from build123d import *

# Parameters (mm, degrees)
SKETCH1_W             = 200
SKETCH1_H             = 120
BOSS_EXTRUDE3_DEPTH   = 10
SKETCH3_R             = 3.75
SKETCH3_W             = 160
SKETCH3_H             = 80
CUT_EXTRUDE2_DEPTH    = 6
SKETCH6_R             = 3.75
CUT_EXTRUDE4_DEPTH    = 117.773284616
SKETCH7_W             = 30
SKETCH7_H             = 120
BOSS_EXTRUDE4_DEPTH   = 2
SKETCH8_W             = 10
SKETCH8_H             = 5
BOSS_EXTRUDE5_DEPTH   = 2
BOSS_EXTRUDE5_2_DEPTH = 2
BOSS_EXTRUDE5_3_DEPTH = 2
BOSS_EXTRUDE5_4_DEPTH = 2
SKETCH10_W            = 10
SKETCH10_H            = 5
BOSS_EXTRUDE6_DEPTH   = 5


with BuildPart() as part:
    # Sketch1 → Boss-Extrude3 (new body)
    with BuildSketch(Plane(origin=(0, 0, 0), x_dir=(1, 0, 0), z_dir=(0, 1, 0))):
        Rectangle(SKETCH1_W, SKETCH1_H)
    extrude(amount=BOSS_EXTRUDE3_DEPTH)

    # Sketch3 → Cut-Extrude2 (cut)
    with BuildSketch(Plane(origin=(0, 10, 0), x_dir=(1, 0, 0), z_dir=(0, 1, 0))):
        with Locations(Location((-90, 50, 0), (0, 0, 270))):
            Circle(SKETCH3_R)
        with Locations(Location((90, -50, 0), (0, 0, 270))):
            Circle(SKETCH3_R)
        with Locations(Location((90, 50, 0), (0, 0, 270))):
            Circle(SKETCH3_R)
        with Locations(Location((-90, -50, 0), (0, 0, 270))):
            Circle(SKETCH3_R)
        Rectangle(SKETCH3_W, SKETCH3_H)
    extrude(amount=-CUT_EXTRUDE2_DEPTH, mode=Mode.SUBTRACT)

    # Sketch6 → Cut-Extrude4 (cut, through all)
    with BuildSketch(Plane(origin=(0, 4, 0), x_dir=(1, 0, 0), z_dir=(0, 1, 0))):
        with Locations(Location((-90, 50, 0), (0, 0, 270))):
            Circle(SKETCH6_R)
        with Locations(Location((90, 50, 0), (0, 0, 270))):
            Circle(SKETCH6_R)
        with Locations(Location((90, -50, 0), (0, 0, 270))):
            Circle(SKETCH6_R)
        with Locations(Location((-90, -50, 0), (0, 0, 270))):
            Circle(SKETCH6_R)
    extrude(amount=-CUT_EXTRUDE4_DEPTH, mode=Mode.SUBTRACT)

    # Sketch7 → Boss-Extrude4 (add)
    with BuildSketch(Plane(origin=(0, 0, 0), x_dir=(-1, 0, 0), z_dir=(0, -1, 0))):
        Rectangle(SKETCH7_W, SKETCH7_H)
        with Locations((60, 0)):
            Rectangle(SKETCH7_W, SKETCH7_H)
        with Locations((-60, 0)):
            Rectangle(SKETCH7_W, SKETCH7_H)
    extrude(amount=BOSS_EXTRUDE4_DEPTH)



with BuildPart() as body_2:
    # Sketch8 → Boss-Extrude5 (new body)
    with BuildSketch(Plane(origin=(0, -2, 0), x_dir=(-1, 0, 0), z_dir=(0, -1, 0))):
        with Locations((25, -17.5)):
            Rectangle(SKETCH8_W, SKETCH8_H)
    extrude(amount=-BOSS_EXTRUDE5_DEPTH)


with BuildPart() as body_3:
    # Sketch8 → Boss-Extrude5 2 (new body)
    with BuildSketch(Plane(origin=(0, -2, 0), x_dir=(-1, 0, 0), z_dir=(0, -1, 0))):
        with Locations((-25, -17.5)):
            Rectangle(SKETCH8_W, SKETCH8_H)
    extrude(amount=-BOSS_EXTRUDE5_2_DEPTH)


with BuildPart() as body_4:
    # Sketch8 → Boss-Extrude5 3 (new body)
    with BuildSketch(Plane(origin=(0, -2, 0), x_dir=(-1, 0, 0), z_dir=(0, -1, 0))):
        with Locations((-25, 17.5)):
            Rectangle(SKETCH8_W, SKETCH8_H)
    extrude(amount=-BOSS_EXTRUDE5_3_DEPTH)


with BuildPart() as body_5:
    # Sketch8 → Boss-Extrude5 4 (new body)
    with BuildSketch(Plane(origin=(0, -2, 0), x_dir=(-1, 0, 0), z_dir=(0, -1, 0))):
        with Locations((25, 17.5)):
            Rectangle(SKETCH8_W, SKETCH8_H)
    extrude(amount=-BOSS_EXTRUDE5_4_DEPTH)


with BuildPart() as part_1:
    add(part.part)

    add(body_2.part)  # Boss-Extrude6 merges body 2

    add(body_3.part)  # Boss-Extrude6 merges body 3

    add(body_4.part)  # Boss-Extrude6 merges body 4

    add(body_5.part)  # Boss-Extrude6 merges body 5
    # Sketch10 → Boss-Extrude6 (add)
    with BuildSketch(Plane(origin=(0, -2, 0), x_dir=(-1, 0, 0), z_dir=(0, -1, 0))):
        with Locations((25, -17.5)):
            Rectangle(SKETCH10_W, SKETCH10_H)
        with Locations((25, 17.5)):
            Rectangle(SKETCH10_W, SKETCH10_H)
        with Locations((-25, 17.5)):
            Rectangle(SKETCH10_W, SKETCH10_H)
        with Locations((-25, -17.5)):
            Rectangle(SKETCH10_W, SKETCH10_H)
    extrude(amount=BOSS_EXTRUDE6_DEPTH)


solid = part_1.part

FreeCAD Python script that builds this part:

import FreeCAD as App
import Part
import Sketcher
from FreeCAD import Vector
Q = App.Units.Quantity

doc = App.newDocument("Part")
params = doc.addObject("Spreadsheet::Sheet", "Params")
for row, (alias, value) in enumerate([
    ("sketch1_width", "200 mm"),
    ("sketch1_height", "120 mm"),
    ("pad1_length", "10 mm"),
    ("sketch2_diameter", "7.5 mm"),
    ("sketch2_width", "160 mm"),
    ("sketch2_height", "80 mm"),
    ("pocket1_length", "6 mm"),
    ("sketch3_diameter", "7.5 mm"),
    ("sketch4_width", "30 mm"),
    ("sketch4_height", "120 mm"),
    ("pad2_length", "2 mm"),
    ("sketch5_width", "10 mm"),
    ("sketch5_height", "5 mm"),
    ("pad3_length", "2 mm"),
    ("sketch6_width", "10 mm"),
    ("sketch6_height", "5 mm"),
    ("pad4_length", "2 mm"),
    ("sketch7_width", "10 mm"),
    ("sketch7_height", "5 mm"),
    ("pad5_length", "2 mm"),
    ("sketch8_width", "10 mm"),
    ("sketch8_height", "5 mm"),
    ("pad6_length", "2 mm"),
    ("sketch9_width", "10 mm"),
    ("sketch9_height", "5 mm"),
    ("pad7_length", "5 mm"),
], start=1):
    params.set(f"A{row}", alias)
    params.set(f"B{row}", "=" + value)
    params.setAlias(f"B{row}", alias)

body = doc.addObject("PartDesign::Body", "Body")

sketch1 = body.newObject("Sketcher::SketchObject", "Sketch")
sketch1.AttachmentSupport = (doc.getObject("XZ_Plane"), [""])
sketch1.MapMode = "FlatFace"
sketch1.addGeometry([
    Part.LineSegment(Vector(-100, -60, 0), Vector(-100, 60, 0)),
    Part.LineSegment(Vector(-100, 60, 0), Vector(100, 60, 0)),
    Part.LineSegment(Vector(100, 60, 0), Vector(100, -60, 0)),
    Part.LineSegment(Vector(100, -60, 0), Vector(-100, -60, 0)),
], False)
sketch1.addConstraint([
    Sketcher.Constraint("Coincident", 0, 2, 1, 1),
    Sketcher.Constraint("Coincident", 1, 2, 2, 1),
    Sketcher.Constraint("Coincident", 2, 2, 3, 1),
    Sketcher.Constraint("Coincident", 3, 2, 0, 1),
    Sketcher.Constraint("Vertical", 0),
    Sketcher.Constraint("Horizontal", 1),
    Sketcher.Constraint("Vertical", 2),
    Sketcher.Constraint("Horizontal", 3),
    Sketcher.Constraint("Symmetric", 0, 2, 2, 2, -1, 1),
    Sketcher.Constraint("DistanceX", 1, 1, 1, 2, Q("200 mm")),
    Sketcher.Constraint("DistanceY", 0, 1, 0, 2, Q("120 mm")),
])
sketch1.setExpression("Constraints[9]", "Params.sketch1_width")
sketch1.setExpression("Constraints[10]", "Params.sketch1_height")
pad1 = body.newObject("PartDesign::Pad", "Pad")
pad1.Profile = sketch1
pad1.setExpression("Length", "Params.pad1_length")
pad1.Reversed = True

sketch2 = body.newObject("Sketcher::SketchObject", "Sketch001")
sketch2.AttachmentSupport = (doc.getObject("XZ_Plane"), [""])
sketch2.MapMode = "FlatFace"
sketch2.AttachmentOffset = App.Placement(Vector(0, 0, -10), App.Rotation())
sketch2.addGeometry([
    Part.Circle(Vector(-90, -50, 0), Vector(0, 0, 1), 3.8),
    Part.Circle(Vector(90, 50, 0), Vector(0, 0, 1), 3.8),
    Part.Circle(Vector(90, -50, 0), Vector(0, 0, 1), 3.8),
    Part.Circle(Vector(-90, 50, 0), Vector(0, 0, 1), 3.8),
    Part.LineSegment(Vector(-80, -40, 0), Vector(-80, 40, 0)),
    Part.LineSegment(Vector(-80, 40, 0), Vector(80, 40, 0)),
    Part.LineSegment(Vector(80, 40, 0), Vector(80, -40, 0)),
    Part.LineSegment(Vector(80, -40, 0), Vector(-80, -40, 0)),
], False)
sketch2.addConstraint([
    Sketcher.Constraint("Coincident", 4, 2, 5, 1),
    Sketcher.Constraint("Coincident", 5, 2, 6, 1),
    Sketcher.Constraint("Coincident", 6, 2, 7, 1),
    Sketcher.Constraint("Coincident", 7, 2, 4, 1),
    Sketcher.Constraint("Vertical", 4),
    Sketcher.Constraint("Horizontal", 5),
    Sketcher.Constraint("Vertical", 6),
    Sketcher.Constraint("Horizontal", 7),
    Sketcher.Constraint("Equal", 0, 1),
    Sketcher.Constraint("Equal", 1, 2),
    Sketcher.Constraint("Equal", 2, 3),
    Sketcher.Constraint("Symmetric", 0, 3, 1, 3, -1, 1),
    Sketcher.Constraint("Symmetric", 2, 3, 3, 3, -1, 1),
    Sketcher.Constraint("Symmetric", 4, 2, 6, 2, -1, 1),
    Sketcher.Constraint("Symmetric", 0, 3, 2, 3, -2),
    Sketcher.Constraint("Diameter", 0, Q("7.5 mm")),
    Sketcher.Constraint("DistanceX", 5, 1, 5, 2, Q("160 mm")),
    Sketcher.Constraint("DistanceY", 4, 1, 4, 2, Q("80 mm")),
    Sketcher.Constraint("DistanceX", 0, 3, -1, 1, Q("90 mm")),
    Sketcher.Constraint("DistanceY", 0, 3, -1, 1, Q("50 mm")),
])
sketch2.setExpression("Constraints[15]", "Params.sketch2_diameter")
sketch2.setExpression("Constraints[16]", "Params.sketch2_width")
sketch2.setExpression("Constraints[17]", "Params.sketch2_height")
pocket1 = body.newObject("PartDesign::Pocket", "Pocket")
pocket1.Profile = sketch2
pocket1.setExpression("Length", "Params.pocket1_length")
pocket1.Reversed = True

sketch3 = body.newObject("Sketcher::SketchObject", "Sketch002")
sketch3.AttachmentSupport = (doc.getObject("XZ_Plane"), [""])
sketch3.MapMode = "FlatFace"
sketch3.AttachmentOffset = App.Placement(Vector(0, 0, -4), App.Rotation())
sketch3.addGeometry([
    Part.Circle(Vector(-90, -50, 0), Vector(0, 0, 1), 3.8),
    Part.Circle(Vector(90, -50, 0), Vector(0, 0, 1), 3.8),
    Part.Circle(Vector(90, 50, 0), Vector(0, 0, 1), 3.8),
    Part.Circle(Vector(-90, 50, 0), Vector(0, 0, 1), 3.8),
], False)
sketch3.addConstraint([
    Sketcher.Constraint("Equal", 0, 1),
    Sketcher.Constraint("Equal", 1, 2),
    Sketcher.Constraint("Equal", 2, 3),
    Sketcher.Constraint("Symmetric", 0, 3, 2, 3, -1, 1),
    Sketcher.Constraint("Symmetric", 1, 3, 3, 3, -1, 1),
    Sketcher.Constraint("Symmetric", 0, 3, 1, 3, -2),
    Sketcher.Constraint("Diameter", 0, Q("7.5 mm")),
    Sketcher.Constraint("DistanceX", 0, 3, -1, 1, Q("90 mm")),
    Sketcher.Constraint("DistanceY", 0, 3, -1, 1, Q("50 mm")),
])
sketch3.setExpression("Constraints[6]", "Params.sketch3_diameter")
pocket2 = body.newObject("PartDesign::Pocket", "Pocket001")
pocket2.Profile = sketch3
pocket2.Type = "ThroughAll"
pocket2.Reversed = True

sketch4 = body.newObject("Sketcher::SketchObject", "Sketch003")
sketch4.AttachmentSupport = (doc.getObject("XZ_Plane"), [""])
sketch4.MapMode = "FlatFace"
sketch4.addGeometry([
    Part.LineSegment(Vector(15, -60, 0), Vector(15, 60, 0)),
    Part.LineSegment(Vector(15, 60, 0), Vector(-15, 60, 0)),
    Part.LineSegment(Vector(-15, 60, 0), Vector(-15, -60, 0)),
    Part.LineSegment(Vector(-15, -60, 0), Vector(15, -60, 0)),
    Part.LineSegment(Vector(-45, -60, 0), Vector(-45, 60, 0)),
    Part.LineSegment(Vector(-45, 60, 0), Vector(-75, 60, 0)),
    Part.LineSegment(Vector(-75, 60, 0), Vector(-75, -60, 0)),
    Part.LineSegment(Vector(-75, -60, 0), Vector(-45, -60, 0)),
    Part.LineSegment(Vector(75, -60, 0), Vector(75, 60, 0)),
    Part.LineSegment(Vector(75, 60, 0), Vector(45, 60, 0)),
    Part.LineSegment(Vector(45, 60, 0), Vector(45, -60, 0)),
    Part.LineSegment(Vector(45, -60, 0), Vector(75, -60, 0)),
], False)
sketch4.addConstraint([
    Sketcher.Constraint("Coincident", 0, 2, 1, 1),
    Sketcher.Constraint("Coincident", 1, 2, 2, 1),
    Sketcher.Constraint("Coincident", 2, 2, 3, 1),
    Sketcher.Constraint("Coincident", 3, 2, 0, 1),
    Sketcher.Constraint("Coincident", 4, 2, 5, 1),
    Sketcher.Constraint("Coincident", 5, 2, 6, 1),
    Sketcher.Constraint("Coincident", 6, 2, 7, 1),
    Sketcher.Constraint("Coincident", 7, 2, 4, 1),
    Sketcher.Constraint("Coincident", 8, 2, 9, 1),
    Sketcher.Constraint("Coincident", 9, 2, 10, 1),
    Sketcher.Constraint("Coincident", 10, 2, 11, 1),
    Sketcher.Constraint("Coincident", 11, 2, 8, 1),
    Sketcher.Constraint("Vertical", 0),
    Sketcher.Constraint("Horizontal", 1),
    Sketcher.Constraint("Vertical", 2),
    Sketcher.Constraint("Horizontal", 3),
    Sketcher.Constraint("Vertical", 4),
    Sketcher.Constraint("Horizontal", 5),
    Sketcher.Constraint("Vertical", 6),
    Sketcher.Constraint("Horizontal", 7),
    Sketcher.Constraint("Vertical", 8),
    Sketcher.Constraint("Horizontal", 9),
    Sketcher.Constraint("Vertical", 10),
    Sketcher.Constraint("Horizontal", 11),
    Sketcher.Constraint("Symmetric", 0, 2, 2, 2, -1, 1),
    Sketcher.Constraint("Symmetric", 6, 2, 8, 2, -1, 1),
    Sketcher.Constraint("Symmetric", 4, 2, 10, 2, -1, 1),
    Sketcher.Constraint("Horizontal", 1, 2, 4, 2),
    Sketcher.Constraint("Horizontal", 3, 2, 6, 2),
    Sketcher.Constraint("Equal", 3, 5),
    Sketcher.Constraint("DistanceX", 1, 2, 1, 1, Q("30 mm")),
    Sketcher.Constraint("DistanceY", 0, 1, 0, 2, Q("120 mm")),
    Sketcher.Constraint("DistanceX", 4, 2, -1, 1, Q("45 mm")),
])
sketch4.setExpression("Constraints[30]", "Params.sketch4_width")
sketch4.setExpression("Constraints[31]", "Params.sketch4_height")
pad2 = body.newObject("PartDesign::Pad", "Pad001")
pad2.Profile = sketch4
pad2.setExpression("Length", "Params.pad2_length")
body2 = doc.addObject("PartDesign::Body", "Body001")

sketch5 = body2.newObject("Sketcher::SketchObject", "Sketch004")
sketch5.AttachmentSupport = (doc.getObject("XZ_Plane001"), [""])
sketch5.MapMode = "FlatFace"
sketch5.AttachmentOffset = App.Placement(Vector(0, 0, 2), App.Rotation())
sketch5.addGeometry([
    Part.LineSegment(Vector(-20, 15, 0), Vector(-20, 20, 0)),
    Part.LineSegment(Vector(-20, 20, 0), Vector(-30, 20, 0)),
    Part.LineSegment(Vector(-30, 20, 0), Vector(-30, 15, 0)),
    Part.LineSegment(Vector(-30, 15, 0), Vector(-20, 15, 0)),
], False)
sketch5.addConstraint([
    Sketcher.Constraint("Coincident", 0, 2, 1, 1),
    Sketcher.Constraint("Coincident", 1, 2, 2, 1),
    Sketcher.Constraint("Coincident", 2, 2, 3, 1),
    Sketcher.Constraint("Coincident", 3, 2, 0, 1),
    Sketcher.Constraint("Vertical", 0),
    Sketcher.Constraint("Horizontal", 1),
    Sketcher.Constraint("Vertical", 2),
    Sketcher.Constraint("Horizontal", 3),
    Sketcher.Constraint("DistanceX", 1, 2, 1, 1, Q("10 mm")),
    Sketcher.Constraint("DistanceY", 0, 1, 0, 2, Q("5 mm")),
    Sketcher.Constraint("DistanceX", 0, 2, -1, 1, Q("20 mm")),
    Sketcher.Constraint("DistanceY", -1, 1, 0, 2, Q("20 mm")),
])
sketch5.setExpression("Constraints[8]", "Params.sketch5_width")
sketch5.setExpression("Constraints[9]", "Params.sketch5_height")
pad3 = body2.newObject("PartDesign::Pad", "Pad002")
pad3.Profile = sketch5
pad3.setExpression("Length", "Params.pad3_length")
pad3.Reversed = True
body3 = doc.addObject("PartDesign::Body", "Body002")

sketch6 = body3.newObject("Sketcher::SketchObject", "Sketch005")
sketch6.AttachmentSupport = (doc.getObject("XZ_Plane002"), [""])
sketch6.MapMode = "FlatFace"
sketch6.AttachmentOffset = App.Placement(Vector(0, 0, 2), App.Rotation())
sketch6.addGeometry([
    Part.LineSegment(Vector(30, 15, 0), Vector(30, 20, 0)),
    Part.LineSegment(Vector(30, 20, 0), Vector(20, 20, 0)),
    Part.LineSegment(Vector(20, 20, 0), Vector(20, 15, 0)),
    Part.LineSegment(Vector(20, 15, 0), Vector(30, 15, 0)),
], False)
sketch6.addConstraint([
    Sketcher.Constraint("Coincident", 0, 2, 1, 1),
    Sketcher.Constraint("Coincident", 1, 2, 2, 1),
    Sketcher.Constraint("Coincident", 2, 2, 3, 1),
    Sketcher.Constraint("Coincident", 3, 2, 0, 1),
    Sketcher.Constraint("Vertical", 0),
    Sketcher.Constraint("Horizontal", 1),
    Sketcher.Constraint("Vertical", 2),
    Sketcher.Constraint("Horizontal", 3),
    Sketcher.Constraint("DistanceX", 1, 2, 1, 1, Q("10 mm")),
    Sketcher.Constraint("DistanceY", 0, 1, 0, 2, Q("5 mm")),
    Sketcher.Constraint("DistanceX", -1, 1, 0, 2, Q("30 mm")),
    Sketcher.Constraint("DistanceY", -1, 1, 0, 2, Q("20 mm")),
])
sketch6.setExpression("Constraints[8]", "Params.sketch6_width")
sketch6.setExpression("Constraints[9]", "Params.sketch6_height")
pad4 = body3.newObject("PartDesign::Pad", "Pad003")
pad4.Profile = sketch6
pad4.setExpression("Length", "Params.pad4_length")
pad4.Reversed = True
body4 = doc.addObject("PartDesign::Body", "Body003")

sketch7 = body4.newObject("Sketcher::SketchObject", "Sketch006")
sketch7.AttachmentSupport = (doc.getObject("XZ_Plane003"), [""])
sketch7.MapMode = "FlatFace"
sketch7.AttachmentOffset = App.Placement(Vector(0, 0, 2), App.Rotation())
sketch7.addGeometry([
    Part.LineSegment(Vector(30, -20, 0), Vector(30, -15, 0)),
    Part.LineSegment(Vector(30, -15, 0), Vector(20, -15, 0)),
    Part.LineSegment(Vector(20, -15, 0), Vector(20, -20, 0)),
    Part.LineSegment(Vector(20, -20, 0), Vector(30, -20, 0)),
], False)
sketch7.addConstraint([
    Sketcher.Constraint("Coincident", 0, 2, 1, 1),
    Sketcher.Constraint("Coincident", 1, 2, 2, 1),
    Sketcher.Constraint("Coincident", 2, 2, 3, 1),
    Sketcher.Constraint("Coincident", 3, 2, 0, 1),
    Sketcher.Constraint("Vertical", 0),
    Sketcher.Constraint("Horizontal", 1),
    Sketcher.Constraint("Vertical", 2),
    Sketcher.Constraint("Horizontal", 3),
    Sketcher.Constraint("DistanceX", 1, 2, 1, 1, Q("10 mm")),
    Sketcher.Constraint("DistanceY", 0, 1, 0, 2, Q("5 mm")),
    Sketcher.Constraint("DistanceX", -1, 1, 0, 2, Q("30 mm")),
    Sketcher.Constraint("DistanceY", 0, 2, -1, 1, Q("15 mm")),
])
sketch7.setExpression("Constraints[8]", "Params.sketch7_width")
sketch7.setExpression("Constraints[9]", "Params.sketch7_height")
pad5 = body4.newObject("PartDesign::Pad", "Pad004")
pad5.Profile = sketch7
pad5.setExpression("Length", "Params.pad5_length")
pad5.Reversed = True
body5 = doc.addObject("PartDesign::Body", "Body004")

sketch8 = body5.newObject("Sketcher::SketchObject", "Sketch007")
sketch8.AttachmentSupport = (doc.getObject("XZ_Plane004"), [""])
sketch8.MapMode = "FlatFace"
sketch8.AttachmentOffset = App.Placement(Vector(0, 0, 2), App.Rotation())
sketch8.addGeometry([
    Part.LineSegment(Vector(-20, -20, 0), Vector(-20, -15, 0)),
    Part.LineSegment(Vector(-20, -15, 0), Vector(-30, -15, 0)),
    Part.LineSegment(Vector(-30, -15, 0), Vector(-30, -20, 0)),
    Part.LineSegment(Vector(-30, -20, 0), Vector(-20, -20, 0)),
], False)
sketch8.addConstraint([
    Sketcher.Constraint("Coincident", 0, 2, 1, 1),
    Sketcher.Constraint("Coincident", 1, 2, 2, 1),
    Sketcher.Constraint("Coincident", 2, 2, 3, 1),
    Sketcher.Constraint("Coincident", 3, 2, 0, 1),
    Sketcher.Constraint("Vertical", 0),
    Sketcher.Constraint("Horizontal", 1),
    Sketcher.Constraint("Vertical", 2),
    Sketcher.Constraint("Horizontal", 3),
    Sketcher.Constraint("DistanceX", 1, 2, 1, 1, Q("10 mm")),
    Sketcher.Constraint("DistanceY", 0, 1, 0, 2, Q("5 mm")),
    Sketcher.Constraint("DistanceX", 0, 2, -1, 1, Q("20 mm")),
    Sketcher.Constraint("DistanceY", 0, 2, -1, 1, Q("15 mm")),
])
sketch8.setExpression("Constraints[8]", "Params.sketch8_width")
sketch8.setExpression("Constraints[9]", "Params.sketch8_height")
pad6 = body5.newObject("PartDesign::Pad", "Pad005")
pad6.Profile = sketch8
pad6.setExpression("Length", "Params.pad6_length")
pad6.Reversed = True
doc.recompute()

boolean = body.newObject("PartDesign::Boolean", "Boolean")
boolean.Type = "Fuse"
boolean.addObjects([body2])
doc.recompute()

boolean2 = body.newObject("PartDesign::Boolean", "Boolean001")
boolean2.Type = "Fuse"
boolean2.addObjects([body3])
doc.recompute()

boolean3 = body.newObject("PartDesign::Boolean", "Boolean002")
boolean3.Type = "Fuse"
boolean3.addObjects([body4])
doc.recompute()

boolean4 = body.newObject("PartDesign::Boolean", "Boolean003")
boolean4.Type = "Fuse"
boolean4.addObjects([body5])

sketch9 = body.newObject("Sketcher::SketchObject", "Sketch008")
sketch9.AttachmentSupport = (doc.getObject("XZ_Plane"), [""])
sketch9.MapMode = "FlatFace"
sketch9.AttachmentOffset = App.Placement(Vector(0, 0, 2), App.Rotation())
sketch9.addGeometry([
    Part.LineSegment(Vector(-20, 15, 0), Vector(-20, 20, 0)),
    Part.LineSegment(Vector(-20, 20, 0), Vector(-30, 20, 0)),
    Part.LineSegment(Vector(-30, 20, 0), Vector(-30, 15, 0)),
    Part.LineSegment(Vector(-30, 15, 0), Vector(-20, 15, 0)),
    Part.LineSegment(Vector(-20, -20, 0), Vector(-20, -15, 0)),
    Part.LineSegment(Vector(-20, -15, 0), Vector(-30, -15, 0)),
    Part.LineSegment(Vector(-30, -15, 0), Vector(-30, -20, 0)),
    Part.LineSegment(Vector(-30, -20, 0), Vector(-20, -20, 0)),
    Part.LineSegment(Vector(30, -20, 0), Vector(30, -15, 0)),
    Part.LineSegment(Vector(30, -15, 0), Vector(20, -15, 0)),
    Part.LineSegment(Vector(20, -15, 0), Vector(20, -20, 0)),
    Part.LineSegment(Vector(20, -20, 0), Vector(30, -20, 0)),
    Part.LineSegment(Vector(30, 15, 0), Vector(30, 20, 0)),
    Part.LineSegment(Vector(30, 20, 0), Vector(20, 20, 0)),
    Part.LineSegment(Vector(20, 20, 0), Vector(20, 15, 0)),
    Part.LineSegment(Vector(20, 15, 0), Vector(30, 15, 0)),
], False)
sketch9.addConstraint([
    Sketcher.Constraint("Coincident", 0, 2, 1, 1),
    Sketcher.Constraint("Coincident", 1, 2, 2, 1),
    Sketcher.Constraint("Coincident", 2, 2, 3, 1),
    Sketcher.Constraint("Coincident", 3, 2, 0, 1),
    Sketcher.Constraint("Coincident", 4, 2, 5, 1),
    Sketcher.Constraint("Coincident", 5, 2, 6, 1),
    Sketcher.Constraint("Coincident", 6, 2, 7, 1),
    Sketcher.Constraint("Coincident", 7, 2, 4, 1),
    Sketcher.Constraint("Coincident", 8, 2, 9, 1),
    Sketcher.Constraint("Coincident", 9, 2, 10, 1),
    Sketcher.Constraint("Coincident", 10, 2, 11, 1),
    Sketcher.Constraint("Coincident", 11, 2, 8, 1),
    Sketcher.Constraint("Coincident", 12, 2, 13, 1),
    Sketcher.Constraint("Coincident", 13, 2, 14, 1),
    Sketcher.Constraint("Coincident", 14, 2, 15, 1),
    Sketcher.Constraint("Coincident", 15, 2, 12, 1),
    Sketcher.Constraint("Vertical", 0),
    Sketcher.Constraint("Horizontal", 1),
    Sketcher.Constraint("Vertical", 2),
    Sketcher.Constraint("Horizontal", 3),
    Sketcher.Constraint("Vertical", 4),
    Sketcher.Constraint("Horizontal", 5),
    Sketcher.Constraint("Vertical", 6),
    Sketcher.Constraint("Horizontal", 7),
    Sketcher.Constraint("Vertical", 8),
    Sketcher.Constraint("Horizontal", 9),
    Sketcher.Constraint("Vertical", 10),
    Sketcher.Constraint("Horizontal", 11),
    Sketcher.Constraint("Vertical", 12),
    Sketcher.Constraint("Horizontal", 13),
    Sketcher.Constraint("Vertical", 14),
    Sketcher.Constraint("Horizontal", 15),
    Sketcher.Constraint("Symmetric", 2, 2, 8, 2, -1, 1),
    Sketcher.Constraint("Symmetric", 0, 2, 10, 2, -1, 1),
    Sketcher.Constraint("Symmetric", 6, 2, 12, 2, -1, 1),
    Sketcher.Constraint("Symmetric", 4, 2, 14, 2, -1, 1),
    Sketcher.Constraint("Symmetric", 5, 2, 8, 2, -2),
    Sketcher.Constraint("Symmetric", 7, 2, 10, 2, -2),
    Sketcher.Constraint("DistanceX", 1, 2, 1, 1, Q("10 mm")),
    Sketcher.Constraint("DistanceY", 0, 1, 0, 2, Q("5 mm")),
    Sketcher.Constraint("DistanceX", 0, 2, -1, 1, Q("20 mm")),
    Sketcher.Constraint("DistanceY", -1, 1, 0, 2, Q("20 mm")),
])
sketch9.setExpression("Constraints[38]", "Params.sketch9_width")
sketch9.setExpression("Constraints[39]", "Params.sketch9_height")
pad7 = body.newObject("PartDesign::Pad", "Pad006")
pad7.Profile = sketch9
pad7.setExpression("Length", "Params.pad7_length")

doc.recompute()
